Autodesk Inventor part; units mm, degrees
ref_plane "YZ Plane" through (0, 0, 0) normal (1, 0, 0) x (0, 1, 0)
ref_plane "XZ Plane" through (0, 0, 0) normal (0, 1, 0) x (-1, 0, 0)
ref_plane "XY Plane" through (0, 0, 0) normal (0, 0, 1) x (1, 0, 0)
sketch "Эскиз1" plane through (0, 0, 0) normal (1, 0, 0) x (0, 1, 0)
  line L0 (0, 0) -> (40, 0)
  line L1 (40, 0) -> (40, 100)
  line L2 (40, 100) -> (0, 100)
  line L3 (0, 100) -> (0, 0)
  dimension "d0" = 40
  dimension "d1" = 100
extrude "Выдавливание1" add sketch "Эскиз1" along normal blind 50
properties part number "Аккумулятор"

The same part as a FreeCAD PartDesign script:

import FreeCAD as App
import Part
import Sketcher
Q = App.Units.Quantity


def add_polygon(sketch, points):
    """Adds a closed chain of lines whose ends are joined by coincident constraints."""
    first, n = sketch.GeometryCount, len(points)
    for a, b in zip(points, points[1:] + points[:1]):
        sketch.addGeometry(Part.LineSegment(App.Vector(*a, 0), App.Vector(*b, 0)), False)
    for i in range(n):
        sketch.addConstraint(Sketcher.Constraint("Coincident", first + i, 2, first + (i + 1) % n, 1))

doc = App.newDocument("Part")
body = doc.addObject("PartDesign::Body", "Body")

sketch1 = doc.addObject("Sketcher::SketchObject", "Sketch")
body.addObject(sketch1)
sketch1.AttachmentSupport = (doc.YZ_Plane, [""])
sketch1.MapMode = "FlatFace"
add_polygon(sketch1, [(0, 100), (0, 0), (40, 0), (40, 100)])
sketch1.addConstraint([
    Sketcher.Constraint("Vertical", 0),
    Sketcher.Constraint("Horizontal", 1),
    Sketcher.Constraint("Vertical", 2),
    Sketcher.Constraint("Horizontal", 3),
    Sketcher.Constraint("Coincident", 0, 2, -1, 1),
    Sketcher.Constraint("DistanceY", 0, 2, 0, 1, Q("3.937 in")),
    Sketcher.Constraint("DistanceX", 1, 1, 1, 2, Q("1.5748 in")),
])
pad1 = doc.addObject("PartDesign::Pad", "Pad")
body.addObject(pad1)
pad1.Profile = sketch1
pad1.Length = Q("1.9685039 in")

doc.recompute()
